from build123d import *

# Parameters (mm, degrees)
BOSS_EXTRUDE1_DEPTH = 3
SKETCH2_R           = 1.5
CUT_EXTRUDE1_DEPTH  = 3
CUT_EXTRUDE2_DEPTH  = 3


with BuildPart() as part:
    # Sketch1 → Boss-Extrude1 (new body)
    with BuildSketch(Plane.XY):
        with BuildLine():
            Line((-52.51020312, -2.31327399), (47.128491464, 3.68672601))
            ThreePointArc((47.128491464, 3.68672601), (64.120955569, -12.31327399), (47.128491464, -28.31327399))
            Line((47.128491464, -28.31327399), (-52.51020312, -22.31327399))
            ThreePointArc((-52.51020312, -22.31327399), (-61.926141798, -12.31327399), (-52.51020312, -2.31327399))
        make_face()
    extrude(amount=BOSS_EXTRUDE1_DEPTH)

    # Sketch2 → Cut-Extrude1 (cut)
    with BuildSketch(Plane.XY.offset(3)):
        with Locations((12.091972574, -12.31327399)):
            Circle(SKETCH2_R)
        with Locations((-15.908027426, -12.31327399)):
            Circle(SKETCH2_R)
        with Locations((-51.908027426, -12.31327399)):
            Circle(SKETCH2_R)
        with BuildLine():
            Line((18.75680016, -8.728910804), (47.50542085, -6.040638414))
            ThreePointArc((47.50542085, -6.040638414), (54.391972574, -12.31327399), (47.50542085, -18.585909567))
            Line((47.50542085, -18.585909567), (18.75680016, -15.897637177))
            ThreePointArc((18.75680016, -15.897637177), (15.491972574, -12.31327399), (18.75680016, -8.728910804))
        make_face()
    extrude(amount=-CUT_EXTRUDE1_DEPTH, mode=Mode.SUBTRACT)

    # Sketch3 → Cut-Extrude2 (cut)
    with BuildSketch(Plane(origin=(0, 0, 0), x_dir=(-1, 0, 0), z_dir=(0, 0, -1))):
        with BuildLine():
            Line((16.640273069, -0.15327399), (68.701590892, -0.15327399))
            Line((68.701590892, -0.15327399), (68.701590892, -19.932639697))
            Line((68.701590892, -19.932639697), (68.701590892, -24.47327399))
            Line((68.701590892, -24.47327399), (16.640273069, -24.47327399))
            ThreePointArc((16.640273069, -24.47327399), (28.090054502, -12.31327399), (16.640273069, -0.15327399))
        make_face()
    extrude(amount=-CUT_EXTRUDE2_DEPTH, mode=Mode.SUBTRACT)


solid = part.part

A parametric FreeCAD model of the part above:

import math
import FreeCAD as App
import Part
import Sketcher

V = App.Vector
Q = App.Units.Quantity

doc = App.newDocument("Part")
params = doc.addObject("Spreadsheet::Sheet", "Params")
for row, (alias, value) in enumerate([
    ("pad1_length", "3 mm"),
    ("sketch2_diameter", "3 mm"),
    ("sketch2_radius", "3.6 mm"),
    ("sketch2_radius2", "6.3 mm"),
    ("pocket1_length", "3 mm"),
    ("sketch3_height", "24.32 mm"),
    ("pocket2_length", "3 mm"),
], start=1):
    params.set(f"A{row}", alias)
    params.set(f"B{row}", "=" + value)
    params.setAlias(f"B{row}", alias)

body = doc.addObject("PartDesign::Body", "Body")

# Sketch on XY plane
sketch1 = body.newObject("Sketcher::SketchObject", "Sketch")
sketch1.AttachmentSupport = (doc.getObject("XY_Plane"), [""])
sketch1.MapMode = "FlatFace"
sketch1.addGeometry(Part.LineSegment(V(47.128491, 3.686726, 0), V(-52.510203, -2.313274, 0)), False)
sketch1.addGeometry(Part.ArcOfCircle(Part.Circle(V(-51.908027, -12.313274, 0), V(0, 0, 1), 10.018114), math.radians(93.446051), math.radians(266.553949)), False)
sketch1.addGeometry(Part.LineSegment(V(-52.510203, -22.313274, 0), V(47.128491, -28.313274, 0)), False)
sketch1.addGeometry(Part.ArcOfCircle(Part.Circle(V(48.091973, -12.313274, 0), V(0, 0, 1), 16.028983), math.radians(-93.446051), math.radians(93.446051)), False)
sketch1.addConstraint(Sketcher.Constraint("Tangent", 0, 2, 1, 1))
sketch1.addConstraint(Sketcher.Constraint("Tangent", 1, 2, 2, 1))
sketch1.addConstraint(Sketcher.Constraint("Tangent", 2, 2, 3, 1))
sketch1.addConstraint(Sketcher.Constraint("Tangent", 3, 2, 0, 1))
sketch1.addConstraint(Sketcher.Constraint("Horizontal", 1, 3, 3, 3))
sketch1.addConstraint(Sketcher.Constraint("DistanceX", 1, 3, 3, 3, Q("100 mm")))
sketch1.addConstraint(Sketcher.Constraint("DistanceY", 1, 3, 0, 2, Q("10 mm")))
sketch1.addConstraint(Sketcher.Constraint("DistanceY", 2, 2, 3, 3, Q("16 mm")))
sketch1.addConstraint(Sketcher.Constraint("DistanceX", -1, 1, 2, 2, Q("47.128491 mm")))
sketch1.addConstraint(Sketcher.Constraint("DistanceY", 1, 3, -1, 1, Q("12.313274 mm")))
pad1 = body.newObject("PartDesign::Pad", "Pad")
pad1.Profile = sketch1
pad1.setExpression("Length", "Params.pad1_length")

# Sketch on XY plane
sketch2 = body.newObject("Sketcher::SketchObject", "Sketch001")
sketch2.AttachmentSupport = (doc.getObject("XY_Plane"), [""])
sketch2.MapMode = "FlatFace"
sketch2.AttachmentOffset = App.Placement(V(0, 0, 3), App.Rotation())
sketch2.addGeometry(Part.Circle(V(12.091973, -12.313274, 0), V(0, 0, 1), 1.5), False)
sketch2.addGeometry(Part.Circle(V(-15.908027, -12.313274, 0), V(0, 0, 1), 1.5), False)
sketch2.addGeometry(Part.Circle(V(-51.908027, -12.313274, 0), V(0, 0, 1), 1.5), False)
sketch2.addGeometry(Part.LineSegment(V(47.505421, -6.040638, 0), V(18.7568, -8.728911, 0)), False)
sketch2.addGeometry(Part.ArcOfCircle(Part.Circle(V(19.091973, -12.313274, 0), V(0, 0, 1), 3.6), math.radians(95.342172), math.radians(264.657828)), False)
sketch2.addGeometry(Part.LineSegment(V(18.7568, -15.897637, 0), V(47.505421, -18.58591, 0)), False)
sketch2.addGeometry(Part.ArcOfCircle(Part.Circle(V(48.091973, -12.313274, 0), V(0, 0, 1), 6.3), math.radians(-95.342172), math.radians(95.342172)), False)
sketch2.addConstraint(Sketcher.Constraint("Tangent", 3, 2, 4, 1))
sketch2.addConstraint(Sketcher.Constraint("Tangent", 4, 2, 5, 1))
sketch2.addConstraint(Sketcher.Constraint("Tangent", 5, 2, 6, 1))
sketch2.addConstraint(Sketcher.Constraint("Tangent", 6, 2, 3, 1))
sketch2.addConstraint(Sketcher.Constraint("Equal", 0, 1))
sketch2.addConstraint(Sketcher.Constraint("Equal", 1, 2))
sketch2.addConstraint(Sketcher.Constraint("Horizontal", 0, 3, 1, 3))
sketch2.addConstraint(Sketcher.Constraint("Horizontal", 1, 3, 2, 3))
sketch2.addConstraint(Sketcher.Constraint("Horizontal", 2, 3, 4, 3))
sketch2.addConstraint(Sketcher.Constraint("Horizontal", 4, 3, 6, 3))
sketch2.addConstraint(Sketcher.Constraint("Diameter", 0, Q("3 mm")))
sketch2.addConstraint(Sketcher.Constraint("Radius", 4, Q("3.6 mm")))
sketch2.addConstraint(Sketcher.Constraint("Radius", 6, Q("6.3 mm")))
sketch2.addConstraint(Sketcher.Constraint("DistanceX", 1, 3, 0, 3, Q("28 mm")))
sketch2.addConstraint(Sketcher.Constraint("DistanceX", 2, 3, 1, 3, Q("36 mm")))
sketch2.addConstraint(Sketcher.Constraint("DistanceX", 0, 3, 4, 3, Q("7 mm")))
sketch2.addConstraint(Sketcher.Constraint("DistanceX", 4, 3, 6, 3, Q("29 mm")))
sketch2.addConstraint(Sketcher.Constraint("DistanceX", -1, 1, 3, 2, Q("18.7568 mm")))
sketch2.addConstraint(Sketcher.Constraint("DistanceY", 3, 2, -1, 1, Q("8.728911 mm")))
sketch2.setExpression("Constraints[10]", "Params.sketch2_diameter")
sketch2.setExpression("Constraints[11]", "Params.sketch2_radius")
sketch2.setExpression("Constraints[12]", "Params.sketch2_radius2")
pocket1 = body.newObject("PartDesign::Pocket", "Pocket")
pocket1.Profile = sketch2
pocket1.setExpression("Length", "Params.pocket1_length")

# Sketch on XY plane
sketch3 = body.newObject("Sketcher::SketchObject", "Sketch002")
sketch3.AttachmentSupport = (doc.getObject("XY_Plane"), [""])
sketch3.MapMode = "FlatFace"
sketch3.addGeometry(Part.LineSegment(V(-68.701591, -0.153274, 0), V(-16.640273, -0.153274, 0)), False)
sketch3.addGeometry(Part.ArcOfCircle(Part.Circle(V(-15.908027, -12.313274, 0), V(0, 0, 1), 12.182027), math.radians(93.446051), math.radians(266.553949)), False)
sketch3.addGeometry(Part.LineSegment(V(-16.640273, -24.473274, 0), V(-68.701591, -24.473274, 0)), False)
sketch3.addGeometry(Part.LineSegment(V(-68.701591, -24.473274, 0), V(-68.701591, -0.153274, 0)), False)
sketch3.addConstraint(Sketcher.Constraint("Coincident", 0, 2, 1, 1))
sketch3.addConstraint(Sketcher.Constraint("Coincident", 1, 2, 2, 1))
sketch3.addConstraint(Sketcher.Constraint("Coincident", 2, 2, 3, 1))
sketch3.addConstraint(Sketcher.Constraint("Coincident", 3, 2, 0, 1))
sketch3.addConstraint(Sketcher.Constraint("Horizontal", 0))
sketch3.addConstraint(Sketcher.Constraint("Horizontal", 2))
sketch3.addConstraint(Sketcher.Constraint("Vertical", 3))
sketch3.addConstraint(Sketcher.Constraint("Vertical", 0, 2, 1, 2))
sketch3.addConstraint(Sketcher.Constraint("DistanceY", 3, 1, 3, 2, Q("24.32 mm")))
sketch3.addConstraint(Sketcher.Constraint("Radius", 1, Q("12.182027 mm")))
sketch3.addConstraint(Sketcher.Constraint("DistanceX", 0, 1, 0, 2, Q("52.061318 mm")))
sketch3.addConstraint(Sketcher.Constraint("DistanceX", 2, 2, -1, 1, Q("68.701591 mm")))
sketch3.addConstraint(Sketcher.Constraint("DistanceY", 1, 3, -1, 1, Q("12.313274 mm")))
sketch3.setExpression("Constraints[8]", "Params.sketch3_height")
pocket2 = body.newObject("PartDesign::Pocket", "Pocket001")
pocket2.Profile = sketch3
pocket2.setExpression("Length", "Params.pocket2_length")
pocket2.Reversed = True

doc.recompute()
